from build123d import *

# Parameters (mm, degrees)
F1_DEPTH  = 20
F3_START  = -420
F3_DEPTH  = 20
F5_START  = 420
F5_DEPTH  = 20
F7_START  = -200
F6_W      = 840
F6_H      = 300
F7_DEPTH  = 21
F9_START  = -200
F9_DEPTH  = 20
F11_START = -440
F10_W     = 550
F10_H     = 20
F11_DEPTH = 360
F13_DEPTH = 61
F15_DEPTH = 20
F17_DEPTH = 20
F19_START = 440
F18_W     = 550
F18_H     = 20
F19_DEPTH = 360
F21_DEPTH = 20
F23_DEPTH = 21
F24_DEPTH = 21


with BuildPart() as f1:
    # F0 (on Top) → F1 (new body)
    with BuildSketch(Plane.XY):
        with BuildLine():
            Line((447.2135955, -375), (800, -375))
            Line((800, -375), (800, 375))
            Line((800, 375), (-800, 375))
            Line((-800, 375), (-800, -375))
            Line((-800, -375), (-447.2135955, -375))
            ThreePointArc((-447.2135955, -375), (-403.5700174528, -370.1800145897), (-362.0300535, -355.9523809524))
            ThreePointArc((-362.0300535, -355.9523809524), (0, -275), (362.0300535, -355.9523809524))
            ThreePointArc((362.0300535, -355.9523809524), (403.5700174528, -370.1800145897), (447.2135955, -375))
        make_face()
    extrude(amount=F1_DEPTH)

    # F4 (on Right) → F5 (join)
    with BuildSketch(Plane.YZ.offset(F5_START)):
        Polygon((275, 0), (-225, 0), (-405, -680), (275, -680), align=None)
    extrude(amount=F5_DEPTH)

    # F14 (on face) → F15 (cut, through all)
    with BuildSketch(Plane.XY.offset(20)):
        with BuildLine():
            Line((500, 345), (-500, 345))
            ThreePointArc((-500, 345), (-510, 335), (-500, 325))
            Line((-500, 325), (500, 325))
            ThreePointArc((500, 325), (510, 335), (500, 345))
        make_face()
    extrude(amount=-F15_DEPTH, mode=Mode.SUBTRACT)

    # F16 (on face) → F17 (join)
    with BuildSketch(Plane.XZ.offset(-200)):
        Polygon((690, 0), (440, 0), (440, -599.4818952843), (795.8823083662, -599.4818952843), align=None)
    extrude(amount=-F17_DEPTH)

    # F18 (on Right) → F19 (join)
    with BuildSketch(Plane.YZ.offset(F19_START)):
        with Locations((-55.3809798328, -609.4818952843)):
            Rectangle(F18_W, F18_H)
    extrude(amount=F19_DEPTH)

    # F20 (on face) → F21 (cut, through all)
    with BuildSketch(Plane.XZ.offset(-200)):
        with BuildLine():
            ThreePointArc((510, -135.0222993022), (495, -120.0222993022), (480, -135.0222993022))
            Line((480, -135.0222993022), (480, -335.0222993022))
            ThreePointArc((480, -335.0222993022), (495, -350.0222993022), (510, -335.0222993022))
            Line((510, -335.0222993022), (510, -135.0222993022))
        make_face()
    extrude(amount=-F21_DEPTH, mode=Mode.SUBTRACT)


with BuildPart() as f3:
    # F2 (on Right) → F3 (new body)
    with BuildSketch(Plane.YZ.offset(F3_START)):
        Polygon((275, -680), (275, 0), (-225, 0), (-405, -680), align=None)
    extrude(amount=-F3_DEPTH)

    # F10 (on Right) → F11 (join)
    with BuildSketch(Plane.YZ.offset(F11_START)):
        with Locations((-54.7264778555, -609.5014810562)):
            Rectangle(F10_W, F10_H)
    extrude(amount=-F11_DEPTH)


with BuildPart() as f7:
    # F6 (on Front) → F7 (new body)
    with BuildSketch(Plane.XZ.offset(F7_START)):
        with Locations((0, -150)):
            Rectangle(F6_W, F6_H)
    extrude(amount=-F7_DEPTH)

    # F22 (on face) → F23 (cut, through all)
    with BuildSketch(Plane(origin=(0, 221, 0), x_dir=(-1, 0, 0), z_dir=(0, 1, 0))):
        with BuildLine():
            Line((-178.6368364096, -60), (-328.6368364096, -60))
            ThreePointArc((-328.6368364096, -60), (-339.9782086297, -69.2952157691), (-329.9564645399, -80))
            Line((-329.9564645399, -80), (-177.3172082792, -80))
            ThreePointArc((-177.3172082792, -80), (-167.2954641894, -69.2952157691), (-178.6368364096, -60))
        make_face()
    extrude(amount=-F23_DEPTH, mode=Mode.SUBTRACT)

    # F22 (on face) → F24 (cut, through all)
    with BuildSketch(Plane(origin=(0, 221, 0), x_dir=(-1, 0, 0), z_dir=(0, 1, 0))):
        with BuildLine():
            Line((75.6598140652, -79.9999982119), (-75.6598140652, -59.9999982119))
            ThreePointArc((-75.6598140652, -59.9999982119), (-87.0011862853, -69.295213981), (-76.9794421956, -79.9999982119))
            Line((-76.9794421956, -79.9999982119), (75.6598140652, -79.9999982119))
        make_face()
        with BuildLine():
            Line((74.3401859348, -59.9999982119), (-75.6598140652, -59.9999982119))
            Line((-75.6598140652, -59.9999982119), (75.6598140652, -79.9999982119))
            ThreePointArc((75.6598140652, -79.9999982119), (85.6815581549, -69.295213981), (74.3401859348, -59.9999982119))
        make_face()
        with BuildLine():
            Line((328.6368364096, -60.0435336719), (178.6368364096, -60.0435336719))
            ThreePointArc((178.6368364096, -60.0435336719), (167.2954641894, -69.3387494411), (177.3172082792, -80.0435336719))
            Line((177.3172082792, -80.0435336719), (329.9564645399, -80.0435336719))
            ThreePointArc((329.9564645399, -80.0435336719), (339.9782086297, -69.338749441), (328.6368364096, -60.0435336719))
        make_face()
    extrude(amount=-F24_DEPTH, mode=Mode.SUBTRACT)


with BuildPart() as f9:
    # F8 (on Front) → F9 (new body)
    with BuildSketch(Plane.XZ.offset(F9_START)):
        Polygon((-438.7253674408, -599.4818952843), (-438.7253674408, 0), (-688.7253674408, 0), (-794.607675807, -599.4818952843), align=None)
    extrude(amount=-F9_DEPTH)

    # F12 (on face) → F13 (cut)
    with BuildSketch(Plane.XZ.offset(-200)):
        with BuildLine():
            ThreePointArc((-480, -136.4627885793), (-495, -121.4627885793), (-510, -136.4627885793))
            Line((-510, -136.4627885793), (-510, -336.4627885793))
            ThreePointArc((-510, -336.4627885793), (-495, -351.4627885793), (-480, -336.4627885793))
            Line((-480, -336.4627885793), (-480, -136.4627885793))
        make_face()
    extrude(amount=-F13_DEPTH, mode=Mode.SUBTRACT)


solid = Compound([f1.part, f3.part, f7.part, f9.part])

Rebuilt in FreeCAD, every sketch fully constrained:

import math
import FreeCAD as App
import Part
import Sketcher
Q = App.Units.Quantity

doc = App.newDocument("Part")
body = doc.addObject("PartDesign::Body", "Body")

# Sketch on XY plane
sketch1 = doc.addObject("Sketcher::SketchObject", "Sketch")
body.addObject(sketch1)
sketch1.AttachmentSupport = (doc.XY_Plane, [""])
sketch1.MapMode = "FlatFace"
sketch1.addGeometry([
    Part.LineSegment(App.Vector(447, -375, 0), App.Vector(800, -375, 0)),  # 0
    Part.LineSegment(App.Vector(800, -375, 0), App.Vector(800, 375, 0)),  # 1
    Part.LineSegment(App.Vector(800, 375, 0), App.Vector(-800, 375, 0)),  # 2
    Part.LineSegment(App.Vector(-800, 375, 0), App.Vector(-800, -375, 0)),  # 3
    Part.LineSegment(App.Vector(-800, -375, 0), App.Vector(-447, -375, 0)),  # 4
    Part.ArcOfCircle(Part.Circle(App.Vector(-447, -175, 0), App.Vector(0, 0, 1), 200), math.radians(-90), math.radians(-65)),  # 5
    Part.ArcOfCircle(Part.Circle(App.Vector(0, -1125, 0), App.Vector(0, 0, 1), 850), math.radians(65), math.radians(115)),  # 6
    Part.ArcOfCircle(Part.Circle(App.Vector(447, -175, 0), App.Vector(0, 0, 1), 200), math.radians(-115), math.radians(-90)),  # 7
], False)
sketch1.addConstraint([
    Sketcher.Constraint("Coincident", 0, 2, 1, 1),
    Sketcher.Constraint("Coincident", 1, 2, 2, 1),
    Sketcher.Constraint("Coincident", 2, 2, 3, 1),
    Sketcher.Constraint("Coincident", 3, 2, 4, 1),
    Sketcher.Constraint("Tangent", 4, 2, 5, 1),
    Sketcher.Constraint("Tangent", 5, 2, 6, 2),
    Sketcher.Constraint("Tangent", 6, 1, 7, 1),
    Sketcher.Constraint("Tangent", 7, 2, 0, 1),
    Sketcher.Constraint("Horizontal", 0),
    Sketcher.Constraint("Vertical", 1),
    Sketcher.Constraint("Horizontal", 2),
    Sketcher.Constraint("Vertical", 3),
    Sketcher.Constraint("Horizontal", 4),
    Sketcher.Constraint("Equal", 5, 7),
    Sketcher.Constraint("Symmetric", 0, 2, 2, 2, -1, 1),
    Sketcher.Constraint("Symmetric", 5, 3, 7, 3, -2),
    Sketcher.Constraint("Radius", 5, Q("200 mm")),
    Sketcher.Constraint("Radius", 6, Q("850 mm")),
    Sketcher.Constraint("DistanceX", 2, 2, 2, 1, Q("1600 mm")),
    Sketcher.Constraint("DistanceY", 1, 1, 1, 2, Q("750 mm")),
    Sketcher.Constraint("DistanceY", 6, 3, -1, 1, Q("1125 mm")),
])
pad1 = doc.addObject("PartDesign::Pad", "Pad")
body.addObject(pad1)
pad1.Profile = sketch1
pad1.Length = 20

# Sketch on YZ plane
sketch2 = doc.addObject("Sketcher::SketchObject", "Sketch001")
body.addObject(sketch2)
sketch2.AttachmentSupport = (doc.YZ_Plane, [""])
sketch2.MapMode = "FlatFace"
sketch2.AttachmentOffset = App.Placement(App.Vector(0, 0, 420), App.Rotation())
sketch2.addGeometry([
    Part.LineSegment(App.Vector(275, 0, 0), App.Vector(-225, 0, 0)),
    Part.LineSegment(App.Vector(-225, 0, 0), App.Vector(-405, -680, 0)),
    Part.LineSegment(App.Vector(-405, -680, 0), App.Vector(275, -680, 0)),
    Part.LineSegment(App.Vector(275, -680, 0), App.Vector(275, 0, 0)),
], False)
sketch2.addConstraint([
    Sketcher.Constraint("Coincident", 0, 2, 1, 1),
    Sketcher.Constraint("Coincident", 1, 2, 2, 1),
    Sketcher.Constraint("Coincident", 2, 2, 3, 1),
    Sketcher.Constraint("Coincident", 3, 2, 0, 1),
    Sketcher.Constraint("Horizontal", 0),
    Sketcher.Constraint("Horizontal", 2),
    Sketcher.Constraint("Vertical", 3),
    Sketcher.Constraint("PointOnObject", 0, 2, -1),
    Sketcher.Constraint("Equal", 2, 3),
    Sketcher.Constraint("DistanceX", 0, 2, 0, 1, Q("500 mm")),
    Sketcher.Constraint("DistanceX", 2, 1, 2, 2, Q("680 mm")),
    Sketcher.Constraint("DistanceX", 0, 2, -1, 1, Q("225 mm")),
])
pad2 = doc.addObject("PartDesign::Pad", "Pad001")
body.addObject(pad2)
pad2.Profile = sketch2
pad2.Length = 20

# Sketch on XY plane
sketch3 = doc.addObject("Sketcher::SketchObject", "Sketch002")
body.addObject(sketch3)
sketch3.AttachmentSupport = (doc.XY_Plane, [""])
sketch3.MapMode = "FlatFace"
sketch3.AttachmentOffset = App.Placement(App.Vector(0, 0, 20), App.Rotation())
sketch3.addGeometry([
    Part.LineSegment(App.Vector(500, 345, 0), App.Vector(-500, 345, 0)),
    Part.ArcOfCircle(Part.Circle(App.Vector(-500, 335, 0), App.Vector(0, 0, 1), 10), math.radians(90), math.radians(270)),
    Part.LineSegment(App.Vector(-500, 325, 0), App.Vector(500, 325, 0)),
    Part.ArcOfCircle(Part.Circle(App.Vector(500, 335, 0), App.Vector(0, 0, 1), 10), math.radians(-90), math.radians(90)),
], False)
sketch3.addConstraint([
    Sketcher.Constraint("Tangent", 0, 2, 1, 1),
    Sketcher.Constraint("Tangent", 1, 2, 2, 1),
    Sketcher.Constraint("Tangent", 2, 2, 3, 1),
    Sketcher.Constraint("Tangent", 3, 2, 0, 1),
    Sketcher.Constraint("Horizontal", 0),
    Sketcher.Constraint("Horizontal", 2),
    Sketcher.Constraint("Radius", 1, Q("10 mm")),
    Sketcher.Constraint("DistanceX", 0, 2, 0, 1, Q("1000 mm")),
    Sketcher.Constraint("DistanceX", 1, 3, -1, 1, Q("500 mm")),
    Sketcher.Constraint("DistanceY", -1, 1, 1, 3, Q("335 mm")),
])
pocket1 = doc.addObject("PartDesign::Pocket", "Pocket")
body.addObject(pocket1)
pocket1.Profile = sketch3
pocket1.Type = "ThroughAll"

# Sketch on XZ plane
sketch4 = doc.addObject("Sketcher::SketchObject", "Sketch003")
body.addObject(sketch4)
sketch4.AttachmentSupport = (doc.XZ_Plane, [""])
sketch4.MapMode = "FlatFace"
sketch4.AttachmentOffset = App.Placement(App.Vector(0, 0, -200), App.Rotation())
sketch4.addGeometry([
    Part.LineSegment(App.Vector(690, 0, 0), App.Vector(440, 0, 0)),
    Part.LineSegment(App.Vector(440, 0, 0), App.Vector(440, -599, 0)),
    Part.LineSegment(App.Vector(440, -599, 0), App.Vector(796, -599, 0)),
    Part.LineSegment(App.Vector(796, -599, 0), App.Vector(690, 0, 0)),
], False)
sketch4.addConstraint([
    Sketcher.Constraint("Coincident", 0, 2, 1, 1),
    Sketcher.Constraint("Coincident", 1, 2, 2, 1),
    Sketcher.Constraint("Coincident", 2, 2, 3, 1),
    Sketcher.Constraint("Coincident", 3, 2, 0, 1),
    Sketcher.Constraint("Horizontal", 0),
    Sketcher.Constraint("Vertical", 1),
    Sketcher.Constraint("Horizontal", 2),
    Sketcher.Constraint("PointOnObject", 0, 2, -1),
    Sketcher.Constraint("DistanceX", 0, 2, 0, 1, Q("250 mm")),
    Sketcher.Constraint("DistanceX", -1, 1, 0, 2, Q("440 mm")),
    Sketcher.Constraint("DistanceX", 2, 1, 2, 2, Q("355.882308 mm")),
    Sketcher.Constraint("DistanceY", 1, 2, 1, 1, Q("599.481895 mm")),
])
pad3 = doc.addObject("PartDesign::Pad", "Pad002")
body.addObject(pad3)
pad3.Profile = sketch4
pad3.Length = 20
pad3.Reversed = True

# Sketch on YZ plane
sketch5 = doc.addObject("Sketcher::SketchObject", "Sketch004")
body.addObject(sketch5)
sketch5.AttachmentSupport = (doc.YZ_Plane, [""])
sketch5.MapMode = "FlatFace"
sketch5.AttachmentOffset = App.Placement(App.Vector(0, 0, 440), App.Rotation())
sketch5.addGeometry([
    Part.LineSegment(App.Vector(-330, -599, 0), App.Vector(-330, -619, 0)),
    Part.LineSegment(App.Vector(-330, -619, 0), App.Vector(220, -619, 0)),
    Part.LineSegment(App.Vector(220, -619, 0), App.Vector(220, -599, 0)),
    Part.LineSegment(App.Vector(220, -599, 0), App.Vector(-330, -599, 0)),
], False)
sketch5.addConstraint([
    Sketcher.Constraint("Coincident", 0, 2, 1, 1),
    Sketcher.Constraint("Coincident", 1, 2, 2, 1),
    Sketcher.Constraint("Coincident", 2, 2, 3, 1),
    Sketcher.Constraint("Coincident", 3, 2, 0, 1),
    Sketcher.Constraint("Vertical", 0),
    Sketcher.Constraint("Horizontal", 1),
    Sketcher.Constraint("Vertical", 2),
    Sketcher.Constraint("Horizontal", 3),
    Sketcher.Constraint("DistanceX", 1, 1, 1, 2, Q("550 mm")),
    Sketcher.Constraint("DistanceY", 0, 2, 0, 1, Q("20 mm")),
    Sketcher.Constraint("DistanceX", 0, 2, -1, 1, Q("330.38098 mm")),
    Sketcher.Constraint("DistanceY", 0, 2, -1, 1, Q("619.481895 mm")),
])
pad4 = doc.addObject("PartDesign::Pad", "Pad003")
body.addObject(pad4)
pad4.Profile = sketch5
pad4.Length = 360

# Sketch on XZ plane
sketch6 = doc.addObject("Sketcher::SketchObject", "Sketch005")
body.addObject(sketch6)
sketch6.AttachmentSupport = (doc.XZ_Plane, [""])
sketch6.MapMode = "FlatFace"
sketch6.AttachmentOffset = App.Placement(App.Vector(0, 0, -200), App.Rotation())
sketch6.addGeometry([
    Part.ArcOfCircle(Part.Circle(App.Vector(495, -135, 0), App.Vector(0, 0, 1), 15), math.radians(0), math.radians(180)),
    Part.LineSegment(App.Vector(480, -135, 0), App.Vector(480, -335, 0)),
    Part.ArcOfCircle(Part.Circle(App.Vector(495, -335, 0), App.Vector(0, 0, 1), 15), math.radians(180), math.radians(360)),
    Part.LineSegment(App.Vector(510, -335, 0), App.Vector(510, -135, 0)),
], False)
sketch6.addConstraint([
    Sketcher.Constraint("Tangent", 0, 2, 1, 1),
    Sketcher.Constraint("Tangent", 1, 2, 2, 1),
    Sketcher.Constraint("Tangent", 2, 2, 3, 1),
    Sketcher.Constraint("Tangent", 3, 2, 0, 1),
    Sketcher.Constraint("Vertical", 1),
    Sketcher.Constraint("Vertical", 3),
    Sketcher.Constraint("Radius", 0, Q("15 mm")),
    Sketcher.Constraint("DistanceY", 1, 2, 1, 1, Q("200 mm")),
    Sketcher.Constraint("DistanceX", -1, 1, 0, 3, Q("495 mm")),
    Sketcher.Constraint("DistanceY", 0, 3, -1, 1, Q("135.022299 mm")),
])
pocket2 = doc.addObject("PartDesign::Pocket", "Pocket001")
body.addObject(pocket2)
pocket2.Profile = sketch6
pocket2.Type = "ThroughAll"
body2 = doc.addObject("PartDesign::Body", "Body001")

# Sketch on YZ plane
sketch7 = doc.addObject("Sketcher::SketchObject", "Sketch006")
body2.addObject(sketch7)
sketch7.AttachmentSupport = (doc.getObject("YZ_Plane001"), [""])
sketch7.MapMode = "FlatFace"
sketch7.AttachmentOffset = App.Placement(App.Vector(0, 0, -420), App.Rotation())
sketch7.addGeometry([
    Part.LineSegment(App.Vector(275, -680, 0), App.Vector(275, 0, 0)),
    Part.LineSegment(App.Vector(275, 0, 0), App.Vector(-225, 0, 0)),
    Part.LineSegment(App.Vector(-225, 0, 0), App.Vector(-405, -680, 0)),
    Part.LineSegment(App.Vector(-405, -680, 0), App.Vector(275, -680, 0)),
], False)
sketch7.addConstraint([
    Sketcher.Constraint("Coincident", 0, 2, 1, 1),
    Sketcher.Constraint("Coincident", 1, 2, 2, 1),
    Sketcher.Constraint("Coincident", 2, 2, 3, 1),
    Sketcher.Constraint("Coincident", 3, 2, 0, 1),
    Sketcher.Constraint("Vertical", 0),
    Sketcher.Constraint("Horizontal", 1),
    Sketcher.Constraint("Horizontal", 3),
    Sketcher.Constraint("PointOnObject", 0, 2, -1),
    Sketcher.Constraint("Equal", 3, 0),
    Sketcher.Constraint("DistanceX", 1, 2, 1, 1, Q("500 mm")),
    Sketcher.Constraint("DistanceX", 3, 1, 3, 2, Q("680 mm")),
    Sketcher.Constraint("DistanceX", -1, 1, 0, 2, Q("275 mm")),
])
pad5 = doc.addObject("PartDesign::Pad", "Pad004")
body2.addObject(pad5)
pad5.Profile = sketch7
pad5.Length = 20
pad5.Reversed = True

# Sketch on YZ plane
sketch8 = doc.addObject("Sketcher::SketchObject", "Sketch007")
body2.addObject(sketch8)
sketch8.AttachmentSupport = (doc.getObject("YZ_Plane001"), [""])
sketch8.MapMode = "FlatFace"
sketch8.AttachmentOffset = App.Placement(App.Vector(0, 0, -440), App.Rotation())
sketch8.addGeometry([
    Part.LineSegment(App.Vector(-330, -600, 0), App.Vector(-330, -620, 0)),
    Part.LineSegment(App.Vector(-330, -620, 0), App.Vector(220, -620, 0)),
    Part.LineSegment(App.Vector(220, -620, 0), App.Vector(220, -600, 0)),
    Part.LineSegment(App.Vector(220, -600, 0), App.Vector(-330, -600, 0)),
], False)
sketch8.addConstraint([
    Sketcher.Constraint("Coincident", 0, 2, 1, 1),
    Sketcher.Constraint("Coincident", 1, 2, 2, 1),
    Sketcher.Constraint("Coincident", 2, 2, 3, 1),
    Sketcher.Constraint("Coincident", 3, 2, 0, 1),
    Sketcher.Constraint("Vertical", 0),
    Sketcher.Constraint("Horizontal", 1),
    Sketcher.Constraint("Vertical", 2),
    Sketcher.Constraint("Horizontal", 3),
    Sketcher.Constraint("DistanceX", 1, 1, 1, 2, Q("550 mm")),
    Sketcher.Constraint("DistanceY", 0, 2, 0, 1, Q("20 mm")),
    Sketcher.Constraint("DistanceY", 0, 2, -1, 1, Q("619.501481 mm")),
    Sketcher.Constraint("DistanceX", 0, 2, -1, 1, Q("329.726478 mm")),
])
pad6 = doc.addObject("PartDesign::Pad", "Pad005")
body2.addObject(pad6)
pad6.Profile = sketch8
pad6.Length = 360
pad6.Reversed = True
body3 = doc.addObject("PartDesign::Body", "Body002")

# Sketch on XZ plane
sketch9 = doc.addObject("Sketcher::SketchObject", "Sketch008")
body3.addObject(sketch9)
sketch9.AttachmentSupport = (doc.getObject("XZ_Plane002"), [""])
sketch9.MapMode = "FlatFace"
sketch9.AttachmentOffset = App.Placement(App.Vector(0, 0, -200), App.Rotation())
sketch9.addGeometry([
    Part.LineSegment(App.Vector(-420, 0, 0), App.Vector(-420, -300, 0)),
    Part.LineSegment(App.Vector(-420, -300, 0), App.Vector(420, -300, 0)),
    Part.LineSegment(App.Vector(420, -300, 0), App.Vector(420, 0, 0)),
    Part.LineSegment(App.Vector(420, 0, 0), App.Vector(-420, 0, 0)),
], False)
sketch9.addConstraint([
    Sketcher.Constraint("Coincident", 0, 2, 1, 1),
    Sketcher.Constraint("Coincident", 1, 2, 2, 1),
    Sketcher.Constraint("Coincident", 2, 2, 3, 1),
    Sketcher.Constraint("Coincident", 3, 2, 0, 1),
    Sketcher.Constraint("Vertical", 0),
    Sketcher.Constraint("Horizontal", 1),
    Sketcher.Constraint("Vertical", 2),
    Sketcher.Constraint("Horizontal", 3),
    Sketcher.Constraint("Symmetric", 2, 2, 3, 2, -1, 1),
    Sketcher.Constraint("DistanceX", 1, 1, 1, 2, Q("840 mm")),
    Sketcher.Constraint("DistanceY", 0, 2, 0, 1, Q("300 mm")),
])
pad7 = doc.addObject("PartDesign::Pad", "Pad006")
body3.addObject(pad7)
pad7.Profile = sketch9
pad7.Length = 21
pad7.Reversed = True

# Sketch on XZ plane
sketch10 = doc.addObject("Sketcher::SketchObject", "Sketch009")
body3.addObject(sketch10)
sketch10.AttachmentSupport = (doc.getObject("XZ_Plane002"), [""])
sketch10.MapMode = "FlatFace"
sketch10.AttachmentOffset = App.Placement(App.Vector(0, 0, -221), App.Rotation())
sketch10.addGeometry([
    Part.LineSegment(App.Vector(179, -60, 0), App.Vector(329, -60, 0)),
    Part.ArcOfCircle(Part.Circle(App.Vector(330, -70, 0), App.Vector(0, 0, 1), 10), math.radians(-90), math.radians(98)),
    Part.LineSegment(App.Vector(330, -80, 0), App.Vector(177, -80, 0)),
    Part.ArcOfCircle(Part.Circle(App.Vector(177, -70, 0), App.Vector(0, 0, 1), 10), math.radians(82), math.radians(270)),
], False)
sketch10.addConstraint([
    Sketcher.Constraint("Coincident", 0, 2, 1, 2),
    Sketcher.Constraint("Tangent", 1, 1, 2, 1),
    Sketcher.Constraint("Tangent", 2, 2, 3, 2),
    Sketcher.Constraint("Coincident", 3, 1, 0, 1),
    Sketcher.Constraint("Horizontal", 0),
    Sketcher.Constraint("Horizontal", 2),
    Sketcher.Constraint("Equal", 1, 3),
    Sketcher.Constraint("DistanceX", 0, 1, 0, 2, Q("150 mm")),
    Sketcher.Constraint("DistanceY", 0, 2, -1, 1, Q("60 mm")),
    Sketcher.Constraint("DistanceY", 1, 1, -1, 1, Q("80 mm")),
    Sketcher.Constraint("Radius", 1, Q("10.043535 mm")),
    Sketcher.Constraint("DistanceX", -1, 1, 3, 3, Q("177.317208 mm")),
])
pocket3 = doc.addObject("PartDesign::Pocket", "Pocket002")
body3.addObject(pocket3)
pocket3.Profile = sketch10
pocket3.Type = "ThroughAll"
pocket3.Reversed = True

# Sketch on XZ plane
sketch11 = doc.addObject("Sketcher::SketchObject", "Sketch010")
body3.addObject(sketch11)
sketch11.AttachmentSupport = (doc.getObject("XZ_Plane002"), [""])
sketch11.MapMode = "FlatFace"
sketch11.AttachmentOffset = App.Placement(App.Vector(0, 0, -221), App.Rotation())
sketch11.addGeometry([
    Part.ArcOfCircle(Part.Circle(App.Vector(77, -70, 0), App.Vector(0, 0, 1), 10), math.radians(-90), math.radians(98)),  # 0
    Part.LineSegment(App.Vector(77, -80, 0), App.Vector(-76, -80, 0)),  # 1
    Part.ArcOfCircle(Part.Circle(App.Vector(-76, -70, 0), App.Vector(0, 0, 1), 10), math.radians(82), math.radians(270)),  # 2
    Part.LineSegment(App.Vector(-74, -60, 0), App.Vector(76, -60, 0)),  # 3
    Part.LineSegment(App.Vector(-329, -60, 0), App.Vector(-179, -60, 0)),  # 4
    Part.ArcOfCircle(Part.Circle(App.Vector(-177, -70, 0), App.Vector(0, 0, 1), 10), math.radians(-90), math.radians(98)),  # 5
    Part.LineSegment(App.Vector(-177, -80, 0), App.Vector(-330, -80, 0)),  # 6
    Part.ArcOfCircle(Part.Circle(App.Vector(-330, -70, 0), App.Vector(0, 0, 1), 10), math.radians(82), math.radians(270)),  # 7
], False)
sketch11.addConstraint([
    Sketcher.Constraint("Tangent", 0, 1, 1, 1),
    Sketcher.Constraint("Tangent", 1, 2, 2, 2),
    Sketcher.Constraint("Coincident", 2, 1, 3, 1),
    Sketcher.Constraint("Coincident", 3, 2, 0, 2),
    Sketcher.Constraint("Coincident", 4, 2, 5, 2),
    Sketcher.Constraint("Tangent", 5, 1, 6, 1),
    Sketcher.Constraint("Tangent", 6, 2, 7, 2),
    Sketcher.Constraint("Coincident", 7, 1, 4, 1),
    Sketcher.Constraint("Horizontal", 1),
    Sketcher.Constraint("Horizontal", 3),
    Sketcher.Constraint("Horizontal", 4),
    Sketcher.Constraint("Horizontal", 6),
    Sketcher.Constraint("Equal", 0, 2),
    Sketcher.Constraint("Equal", 2, 5),
    Sketcher.Constraint("Equal", 5, 7),
    Sketcher.Constraint("Equal", 3, 4),
    Sketcher.Constraint("Equal", 1, 6),
    Sketcher.Constraint("DistanceX", 3, 1, 3, 2, Q("150 mm")),
    Sketcher.Constraint("DistanceY", 5, 3, -1, 1, Q("69.999998 mm")),
    Sketcher.Constraint("DistanceY", 0, 1, -1, 1, Q("79.999998 mm")),
    Sketcher.Constraint("DistanceY", 2, 1, -1, 1, Q("59.999998 mm")),
    Sketcher.Constraint("Radius", 0, Q("10.043535 mm")),
    Sketcher.Constraint("DistanceX", 5, 3, -1, 1, Q("177.317208 mm")),
    Sketcher.Constraint("DistanceX", 5, 3, 0, 3, Q("254.29665 mm")),
])
pocket4 = doc.addObject("PartDesign::Pocket", "Pocket003")
body3.addObject(pocket4)
pocket4.Profile = sketch11
pocket4.Type = "ThroughAll"
pocket4.Reversed = True
body4 = doc.addObject("PartDesign::Body", "Body003")

# Sketch on XZ plane
sketch12 = doc.addObject("Sketcher::SketchObject", "Sketch011")
body4.addObject(sketch12)
sketch12.AttachmentSupport = (doc.getObject("XZ_Plane003"), [""])
sketch12.MapMode = "FlatFace"
sketch12.AttachmentOffset = App.Placement(App.Vector(0, 0, -200), App.Rotation())
sketch12.addGeometry([
    Part.LineSegment(App.Vector(-439, -599, 0), App.Vector(-439, 0, 0)),
    Part.LineSegment(App.Vector(-439, 0, 0), App.Vector(-689, 0, 0)),
    Part.LineSegment(App.Vector(-689, 0, 0), App.Vector(-795, -599, 0)),
    Part.LineSegment(App.Vector(-795, -599, 0), App.Vector(-439, -599, 0)),
], False)
sketch12.addConstraint([
    Sketcher.Constraint("Coincident", 0, 2, 1, 1),
    Sketcher.Constraint("Coincident", 1, 2, 2, 1),
    Sketcher.Constraint("Coincident", 2, 2, 3, 1),
    Sketcher.Constraint("Coincident", 3, 2, 0, 1),
    Sketcher.Constraint("Vertical", 0),
    Sketcher.Constraint("Horizontal", 1),
    Sketcher.Constraint("Horizontal", 3),
    Sketcher.Constraint("PointOnObject", 0, 2, -1),
    Sketcher.Constraint("DistanceX", 1, 2, 1, 1, Q("250 mm")),
    Sketcher.Constraint("DistanceX", 3, 1, 3, 2, Q("355.882308 mm")),
    Sketcher.Constraint("DistanceY", 0, 1, 0, 2, Q("599.481895 mm")),
    Sketcher.Constraint("DistanceX", 0, 2, -1, 1, Q("438.725367 mm")),
])
pad8 = doc.addObject("PartDesign::Pad", "Pad007")
body4.addObject(pad8)
pad8.Profile = sketch12
pad8.Length = 20
pad8.Reversed = True

# Sketch on XZ plane
sketch13 = doc.addObject("Sketcher::SketchObject", "Sketch012")
body4.addObject(sketch13)
sketch13.AttachmentSupport = (doc.getObject("XZ_Plane003"), [""])
sketch13.MapMode = "FlatFace"
sketch13.AttachmentOffset = App.Placement(App.Vector(0, 0, -200), App.Rotation())
sketch13.addGeometry([
    Part.ArcOfCircle(Part.Circle(App.Vector(-495, -136, 0), App.Vector(0, 0, 1), 15), math.radians(0), math.radians(180)),
    Part.LineSegment(App.Vector(-510, -136, 0), App.Vector(-510, -336, 0)),
    Part.ArcOfCircle(Part.Circle(App.Vector(-495, -336, 0), App.Vector(0, 0, 1), 15), math.radians(180), math.radians(360)),
    Part.LineSegment(App.Vector(-480, -336, 0), App.Vector(-480, -136, 0)),
], False)
sketch13.addConstraint([
    Sketcher.Constraint("Tangent", 0, 2, 1, 1),
    Sketcher.Constraint("Tangent", 1, 2, 2, 1),
    Sketcher.Constraint("Tangent", 2, 2, 3, 1),
    Sketcher.Constraint("Tangent", 3, 2, 0, 1),
    Sketcher.Constraint("Vertical", 1),
    Sketcher.Constraint("Vertical", 3),
    Sketcher.Constraint("Radius", 0, Q("15 mm")),
    Sketcher.Constraint("DistanceY", 1, 2, 1, 1, Q("200 mm")),
    Sketcher.Constraint("DistanceX", 0, 3, -1, 1, Q("495 mm")),
    Sketcher.Constraint("DistanceY", 0, 3, -1, 1, Q("136.462789 mm")),
])
pocket5 = doc.addObject("PartDesign::Pocket", "Pocket004")
body4.addObject(pocket5)
pocket5.Profile = sketch13
pocket5.Length = 61

doc.recompute()
